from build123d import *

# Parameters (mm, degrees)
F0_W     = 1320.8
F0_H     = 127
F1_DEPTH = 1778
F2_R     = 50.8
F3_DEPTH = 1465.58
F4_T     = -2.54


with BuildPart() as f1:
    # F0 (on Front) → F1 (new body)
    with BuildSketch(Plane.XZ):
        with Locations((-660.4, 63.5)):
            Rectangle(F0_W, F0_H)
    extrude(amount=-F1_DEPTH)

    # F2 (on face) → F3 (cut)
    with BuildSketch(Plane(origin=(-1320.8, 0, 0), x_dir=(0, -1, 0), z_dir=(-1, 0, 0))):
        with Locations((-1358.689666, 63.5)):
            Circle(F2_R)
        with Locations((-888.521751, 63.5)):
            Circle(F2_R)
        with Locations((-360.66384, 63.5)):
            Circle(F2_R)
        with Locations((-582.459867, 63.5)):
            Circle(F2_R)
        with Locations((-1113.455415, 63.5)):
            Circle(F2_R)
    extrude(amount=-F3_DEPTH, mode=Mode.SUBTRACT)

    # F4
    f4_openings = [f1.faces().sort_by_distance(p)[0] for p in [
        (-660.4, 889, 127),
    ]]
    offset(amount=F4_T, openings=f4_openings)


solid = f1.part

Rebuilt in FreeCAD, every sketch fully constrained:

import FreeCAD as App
import Part
import Sketcher
from FreeCAD import Vector
Q = App.Units.Quantity


def faces_at(feature, points):
    """Names of the faces that lie closest to the given points."""
    faces = feature.Shape.Faces
    near = lambda p: min(range(len(faces)), key=lambda i: faces[i].distToShape(Part.Vertex(*p))[0])
    return sorted({f"Face{near(p) + 1}" for p in points})


def add_polygon(sketch, points):
    """Adds a closed chain of lines whose ends are joined by coincident constraints."""
    first, n = sketch.GeometryCount, len(points)
    for a, b in zip(points, points[1:] + points[:1]):
        sketch.addGeometry(Part.LineSegment(App.Vector(*a, 0), App.Vector(*b, 0)), False)
    for i in range(n):
        sketch.addConstraint(Sketcher.Constraint("Coincident", first + i, 2, first + (i + 1) % n, 1))

doc = App.newDocument("Part")
body = doc.addObject("PartDesign::Body", "Body")

# Sketch on XZ plane
sketch1 = doc.addObject("Sketcher::SketchObject", "Sketch")
body.addObject(sketch1)
sketch1.AttachmentSupport = (doc.XZ_Plane, [""])
sketch1.MapMode = "FlatFace"
add_polygon(sketch1, [(-1321, 127), (-1321, 0), (0, 0), (0, 127)])  # lines 0-3
sketch1.addConstraint([
    Sketcher.Constraint("Vertical", 0),
    Sketcher.Constraint("Horizontal", 1),
    Sketcher.Constraint("Vertical", 2),
    Sketcher.Constraint("Horizontal", 3),
    Sketcher.Constraint("Coincident", 1, 2, -1, 1),
    Sketcher.Constraint("DistanceX", 1, 1, 1, 2, Q("52 in")),
    Sketcher.Constraint("DistanceY", 0, 2, 0, 1, Q("5 in")),
])
pad1 = doc.addObject("PartDesign::Pad", "Pad")
body.addObject(pad1)
pad1.Profile = sketch1
pad1.Length = Q("70 in")
pad1.Reversed = True

# Sketch on YZ plane
sketch2 = doc.addObject("Sketcher::SketchObject", "Sketch001")
body.addObject(sketch2)
sketch2.AttachmentSupport = (doc.YZ_Plane, [""])
sketch2.MapMode = "FlatFace"
sketch2.AttachmentOffset = App.Placement(Vector(0, 0, -52 * 25.4), App.Rotation())
sketch2.addGeometry([
    Part.Circle(Vector(1359, 64, 0), Vector(0, 0, 1), 51),  # 0
    Part.Circle(Vector(889, 64, 0), Vector(0, 0, 1), 51),  # 1
    Part.Circle(Vector(361, 64, 0), Vector(0, 0, 1), 51),  # 2
    Part.Circle(Vector(582, 64, 0), Vector(0, 0, 1), 51),  # 3
    Part.Circle(Vector(1113, 64, 0), Vector(0, 0, 1), 51),  # 4
], False)
sketch2.addConstraint([
    Sketcher.Constraint("Equal", 0, 1),
    Sketcher.Constraint("Equal", 1, 2),
    Sketcher.Constraint("Equal", 2, 3),
    Sketcher.Constraint("Equal", 3, 4),
    Sketcher.Constraint("Horizontal", 0, 3, 1, 3),
    Sketcher.Constraint("Horizontal", 1, 3, 2, 3),
    Sketcher.Constraint("Horizontal", 2, 3, 3, 3),
    Sketcher.Constraint("Horizontal", 3, 3, 4, 3),
    Sketcher.Constraint("Diameter", 0, Q("4 in")),
    Sketcher.Constraint("DistanceY", -1, 1, 0, 3, Q("2.5 in")),
    Sketcher.Constraint("DistanceX", 3, 3, 0, 3, Q("776.229799 mm")),
    Sketcher.Constraint("DistanceX", -1, 1, 1, 3, Q("888.521751 mm")),
    Sketcher.Constraint("DistanceX", -1, 1, 2, 3, Q("360.66384 mm")),
    Sketcher.Constraint("DistanceX", 4, 3, 0, 3, Q("245.234251 mm")),
    Sketcher.Constraint("DistanceX", -1, 1, 0, 3, Q("1358.689666 mm")),
])
pocket1 = doc.addObject("PartDesign::Pocket", "Pocket")
body.addObject(pocket1)
pocket1.Profile = sketch2
pocket1.Length = Q("57.7 in")
pocket1.Reversed = True
doc.recompute()

thickness = doc.addObject("PartDesign::Thickness", "Thickness")
body.addObject(thickness)
thickness.Base = (pocket1, faces_at(pocket1, [(-660.4, 889, 127)]))
thickness.Value = Q("0.1 in")
thickness.Reversed = True
thickness.Join = "Arc"

doc.recompute()
